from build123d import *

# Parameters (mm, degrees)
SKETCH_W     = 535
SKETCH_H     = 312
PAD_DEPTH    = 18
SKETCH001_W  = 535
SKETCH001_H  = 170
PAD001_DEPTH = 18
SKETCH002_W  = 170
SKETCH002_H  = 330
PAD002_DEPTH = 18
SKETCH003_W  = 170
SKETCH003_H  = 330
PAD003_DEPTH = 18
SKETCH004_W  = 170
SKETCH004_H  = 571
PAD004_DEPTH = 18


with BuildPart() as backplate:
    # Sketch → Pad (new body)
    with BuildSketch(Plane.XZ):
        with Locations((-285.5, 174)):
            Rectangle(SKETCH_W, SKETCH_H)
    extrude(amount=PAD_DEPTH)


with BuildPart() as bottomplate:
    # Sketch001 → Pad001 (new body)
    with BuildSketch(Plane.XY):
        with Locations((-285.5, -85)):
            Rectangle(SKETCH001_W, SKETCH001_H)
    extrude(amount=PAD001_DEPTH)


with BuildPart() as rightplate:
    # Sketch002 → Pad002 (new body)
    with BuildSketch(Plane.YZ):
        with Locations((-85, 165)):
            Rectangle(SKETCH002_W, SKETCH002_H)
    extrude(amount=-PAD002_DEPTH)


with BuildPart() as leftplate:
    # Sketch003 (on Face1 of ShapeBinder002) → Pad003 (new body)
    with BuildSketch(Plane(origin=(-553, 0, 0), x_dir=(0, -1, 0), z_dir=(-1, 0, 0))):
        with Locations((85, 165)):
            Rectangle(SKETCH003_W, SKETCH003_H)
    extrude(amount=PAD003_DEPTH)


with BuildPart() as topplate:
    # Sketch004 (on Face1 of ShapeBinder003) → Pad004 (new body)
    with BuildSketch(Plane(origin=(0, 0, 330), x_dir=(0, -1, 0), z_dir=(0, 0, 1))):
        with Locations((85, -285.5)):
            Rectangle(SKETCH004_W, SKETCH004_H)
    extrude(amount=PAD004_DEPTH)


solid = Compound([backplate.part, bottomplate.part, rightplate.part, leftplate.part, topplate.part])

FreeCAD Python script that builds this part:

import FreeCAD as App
import Part
import Sketcher

doc = App.newDocument("Part")
params = doc.addObject("Spreadsheet::Sheet", "Params")
for row, (alias, value) in enumerate([
    ("sketch1_width", "535 mm"),
    ("sketch1_height", "312 mm"),
    ("pad1_length", "18 mm"),
    ("sketch2_width", "535 mm"),
    ("sketch2_height", "170 mm"),
    ("pad2_length", "18 mm"),
    ("sketch3_width", "170 mm"),
    ("sketch3_height", "330 mm"),
    ("pad3_length", "18 mm"),
    ("sketch4_width", "170 mm"),
    ("sketch4_height", "330 mm"),
    ("pad4_length", "18 mm"),
    ("sketch5_width", "571 mm"),
    ("sketch5_height", "170 mm"),
    ("pad5_length", "18 mm"),
], start=1):
    params.set(f"A{row}", alias)
    params.set(f"B{row}", "=" + value)
    params.setAlias(f"B{row}", alias)

body = doc.addObject("PartDesign::Body", "Body")

# Sketch on XZ plane
sketch1 = doc.addObject("Sketcher::SketchObject", "Sketch")
body.addObject(sketch1)
sketch1.AttachmentSupport = (doc.XZ_Plane, [""])
sketch1.MapMode = "FlatFace"
sketch1.addGeometry(Part.LineSegment(App.Vector(-553, 330, 0), App.Vector(-553, 18, 0)), False)
sketch1.addGeometry(Part.LineSegment(App.Vector(-553, 18, 0), App.Vector(-18, 18, 0)), False)
sketch1.addGeometry(Part.LineSegment(App.Vector(-18, 18, 0), App.Vector(-18, 330, 0)), False)
sketch1.addGeometry(Part.LineSegment(App.Vector(-18, 330, 0), App.Vector(-553, 330, 0)), False)
sketch1.addConstraint(Sketcher.Constraint("Coincident", 0, 2, 1, 1))
sketch1.addConstraint(Sketcher.Constraint("Coincident", 1, 2, 2, 1))
sketch1.addConstraint(Sketcher.Constraint("Coincident", 2, 2, 3, 1))
sketch1.addConstraint(Sketcher.Constraint("Coincident", 3, 2, 0, 1))
sketch1.addConstraint(Sketcher.Constraint("Vertical", 0))
sketch1.addConstraint(Sketcher.Constraint("Horizontal", 1))
sketch1.addConstraint(Sketcher.Constraint("Vertical", 2))
sketch1.addConstraint(Sketcher.Constraint("Horizontal", 3))
sketch1.addConstraint(Sketcher.Constraint("DistanceX", 1, 1, 1, 2, 535.0))
sketch1.addConstraint(Sketcher.Constraint("DistanceY", 0, 2, 0, 1, 312.0))
sketch1.addConstraint(Sketcher.Constraint("DistanceX", 0, 2, -1, 1, 553.0))
sketch1.addConstraint(Sketcher.Constraint("DistanceY", -1, 1, 0, 2, 18.0))
sketch1.setExpression("Constraints[8]", "Params.sketch1_width")
sketch1.setExpression("Constraints[9]", "Params.sketch1_height")
pad1 = doc.addObject("PartDesign::Pad", "Pad")
body.addObject(pad1)
pad1.Profile = sketch1
pad1.setExpression("Length", "Params.pad1_length")
body2 = doc.addObject("PartDesign::Body", "Body001")

# Sketch on XY plane
sketch2 = doc.addObject("Sketcher::SketchObject", "Sketch001")
body2.addObject(sketch2)
sketch2.AttachmentSupport = (doc.getObject("XY_Plane001"), [""])
sketch2.MapMode = "FlatFace"
sketch2.addGeometry(Part.LineSegment(App.Vector(-553, 0, 0), App.Vector(-553, -170, 0)), False)
sketch2.addGeometry(Part.LineSegment(App.Vector(-553, -170, 0), App.Vector(-18, -170, 0)), False)
sketch2.addGeometry(Part.LineSegment(App.Vector(-18, -170, 0), App.Vector(-18, 0, 0)), False)
sketch2.addGeometry(Part.LineSegment(App.Vector(-18, 0, 0), App.Vector(-553, 0, 0)), False)
sketch2.addConstraint(Sketcher.Constraint("Coincident", 0, 2, 1, 1))
sketch2.addConstraint(Sketcher.Constraint("Coincident", 1, 2, 2, 1))
sketch2.addConstraint(Sketcher.Constraint("Coincident", 2, 2, 3, 1))
sketch2.addConstraint(Sketcher.Constraint("Coincident", 3, 2, 0, 1))
sketch2.addConstraint(Sketcher.Constraint("Vertical", 0))
sketch2.addConstraint(Sketcher.Constraint("Horizontal", 1))
sketch2.addConstraint(Sketcher.Constraint("Vertical", 2))
sketch2.addConstraint(Sketcher.Constraint("Horizontal", 3))
sketch2.addConstraint(Sketcher.Constraint("PointOnObject", 2, 2, -1))
sketch2.addConstraint(Sketcher.Constraint("DistanceX", 1, 1, 1, 2, 535.0))
sketch2.addConstraint(Sketcher.Constraint("DistanceY", 0, 2, 0, 1, 170.0))
sketch2.addConstraint(Sketcher.Constraint("DistanceX", 0, 2, -1, 1, 553.0))
sketch2.setExpression("Constraints[9]", "Params.sketch2_width")
sketch2.setExpression("Constraints[10]", "Params.sketch2_height")
pad2 = doc.addObject("PartDesign::Pad", "Pad001")
body2.addObject(pad2)
pad2.Profile = sketch2
pad2.setExpression("Length", "Params.pad2_length")
body3 = doc.addObject("PartDesign::Body", "Body002")

# Sketch on YZ plane
sketch3 = doc.addObject("Sketcher::SketchObject", "Sketch002")
body3.addObject(sketch3)
sketch3.AttachmentSupport = (doc.getObject("YZ_Plane002"), [""])
sketch3.MapMode = "FlatFace"
sketch3.addGeometry(Part.LineSegment(App.Vector(-170, 330, 0), App.Vector(-170, 0, 0)), False)
sketch3.addGeometry(Part.LineSegment(App.Vector(-170, 0, 0), App.Vector(0, 0, 0)), False)
sketch3.addGeometry(Part.LineSegment(App.Vector(0, 0, 0), App.Vector(0, 330, 0)), False)
sketch3.addGeometry(Part.LineSegment(App.Vector(0, 330, 0), App.Vector(-170, 330, 0)), False)
sketch3.addConstraint(Sketcher.Constraint("Coincident", 0, 2, 1, 1))
sketch3.addConstraint(Sketcher.Constraint("Coincident", 1, 2, 2, 1))
sketch3.addConstraint(Sketcher.Constraint("Coincident", 2, 2, 3, 1))
sketch3.addConstraint(Sketcher.Constraint("Coincident", 3, 2, 0, 1))
sketch3.addConstraint(Sketcher.Constraint("Vertical", 0))
sketch3.addConstraint(Sketcher.Constraint("Horizontal", 1))
sketch3.addConstraint(Sketcher.Constraint("Vertical", 2))
sketch3.addConstraint(Sketcher.Constraint("Horizontal", 3))
sketch3.addConstraint(Sketcher.Constraint("Coincident", 1, 2, -1, 1))
sketch3.addConstraint(Sketcher.Constraint("DistanceX", 1, 1, 1, 2, 170.0))
sketch3.addConstraint(Sketcher.Constraint("DistanceY", 0, 2, 0, 1, 330.0))
sketch3.setExpression("Constraints[9]", "Params.sketch3_width")
sketch3.setExpression("Constraints[10]", "Params.sketch3_height")
pad3 = doc.addObject("PartDesign::Pad", "Pad002")
body3.addObject(pad3)
pad3.Profile = sketch3
pad3.setExpression("Length", "Params.pad3_length")
pad3.Reversed = True
body4 = doc.addObject("PartDesign::Body", "Body003")

# Sketch on YZ plane
sketch4 = doc.addObject("Sketcher::SketchObject", "Sketch003")
body4.addObject(sketch4)
sketch4.AttachmentSupport = (doc.getObject("YZ_Plane003"), [""])
sketch4.MapMode = "FlatFace"
sketch4.AttachmentOffset = App.Placement(App.Vector(0, 0, -553), App.Rotation())
sketch4.addGeometry(Part.LineSegment(App.Vector(0, 330, 0), App.Vector(0, 0, 0)), False)
sketch4.addGeometry(Part.LineSegment(App.Vector(0, 0, 0), App.Vector(-170, 0, 0)), False)
sketch4.addGeometry(Part.LineSegment(App.Vector(-170, 0, 0), App.Vector(-170, 330, 0)), False)
sketch4.addGeometry(Part.LineSegment(App.Vector(-170, 330, 0), App.Vector(0, 330, 0)), False)
sketch4.addConstraint(Sketcher.Constraint("Coincident", 0, 2, 1, 1))
sketch4.addConstraint(Sketcher.Constraint("Coincident", 1, 2, 2, 1))
sketch4.addConstraint(Sketcher.Constraint("Coincident", 2, 2, 3, 1))
sketch4.addConstraint(Sketcher.Constraint("Coincident", 3, 2, 0, 1))
sketch4.addConstraint(Sketcher.Constraint("Vertical", 0))
sketch4.addConstraint(Sketcher.Constraint("Horizontal", 1))
sketch4.addConstraint(Sketcher.Constraint("Vertical", 2))
sketch4.addConstraint(Sketcher.Constraint("Horizontal", 3))
sketch4.addConstraint(Sketcher.Constraint("Coincident", 0, 2, -1, 1))
sketch4.addConstraint(Sketcher.Constraint("DistanceX", 1, 2, 1, 1, 170.0))
sketch4.addConstraint(Sketcher.Constraint("DistanceY", 0, 2, 0, 1, 330.0))
sketch4.setExpression("Constraints[9]", "Params.sketch4_width")
sketch4.setExpression("Constraints[10]", "Params.sketch4_height")
pad4 = doc.addObject("PartDesign::Pad", "Pad003")
body4.addObject(pad4)
pad4.Profile = sketch4
pad4.setExpression("Length", "Params.pad4_length")
pad4.Reversed = True
body5 = doc.addObject("PartDesign::Body", "Body004")

# Sketch on XY plane
sketch5 = doc.addObject("Sketcher::SketchObject", "Sketch004")
body5.addObject(sketch5)
sketch5.AttachmentSupport = (doc.getObject("XY_Plane004"), [""])
sketch5.MapMode = "FlatFace"
sketch5.AttachmentOffset = App.Placement(App.Vector(0, 0, 330), App.Rotation())
sketch5.addGeometry(Part.LineSegment(App.Vector(0, 0, 0), App.Vector(-571, 0, 0)), False)
sketch5.addGeometry(Part.LineSegment(App.Vector(-571, 0, 0), App.Vector(-571, -170, 0)), False)
sketch5.addGeometry(Part.LineSegment(App.Vector(-571, -170, 0), App.Vector(0, -170, 0)), False)
sketch5.addGeometry(Part.LineSegment(App.Vector(0, -170, 0), App.Vector(0, 0, 0)), False)
sketch5.addConstraint(Sketcher.Constraint("Coincident", 0, 2, 1, 1))
sketch5.addConstraint(Sketcher.Constraint("Coincident", 1, 2, 2, 1))
sketch5.addConstraint(Sketcher.Constraint("Coincident", 2, 2, 3, 1))
sketch5.addConstraint(Sketcher.Constraint("Coincident", 3, 2, 0, 1))
sketch5.addConstraint(Sketcher.Constraint("Horizontal", 0))
sketch5.addConstraint(Sketcher.Constraint("Vertical", 1))
sketch5.addConstraint(Sketcher.Constraint("Horizontal", 2))
sketch5.addConstraint(Sketcher.Constraint("Vertical", 3))
sketch5.addConstraint(Sketcher.Constraint("Coincident", 3, 2, -1, 1))
sketch5.addConstraint(Sketcher.Constraint("DistanceX", 0, 2, 0, 1, 571.0))
sketch5.addConstraint(Sketcher.Constraint("DistanceY", 1, 2, 1, 1, 170.0))
sketch5.setExpression("Constraints[9]", "Params.sketch5_width")
sketch5.setExpression("Constraints[10]", "Params.sketch5_height")
pad5 = doc.addObject("PartDesign::Pad", "Pad004")
body5.addObject(pad5)
pad5.Profile = sketch5
pad5.setExpression("Length", "Params.pad5_length")

doc.recompute()
